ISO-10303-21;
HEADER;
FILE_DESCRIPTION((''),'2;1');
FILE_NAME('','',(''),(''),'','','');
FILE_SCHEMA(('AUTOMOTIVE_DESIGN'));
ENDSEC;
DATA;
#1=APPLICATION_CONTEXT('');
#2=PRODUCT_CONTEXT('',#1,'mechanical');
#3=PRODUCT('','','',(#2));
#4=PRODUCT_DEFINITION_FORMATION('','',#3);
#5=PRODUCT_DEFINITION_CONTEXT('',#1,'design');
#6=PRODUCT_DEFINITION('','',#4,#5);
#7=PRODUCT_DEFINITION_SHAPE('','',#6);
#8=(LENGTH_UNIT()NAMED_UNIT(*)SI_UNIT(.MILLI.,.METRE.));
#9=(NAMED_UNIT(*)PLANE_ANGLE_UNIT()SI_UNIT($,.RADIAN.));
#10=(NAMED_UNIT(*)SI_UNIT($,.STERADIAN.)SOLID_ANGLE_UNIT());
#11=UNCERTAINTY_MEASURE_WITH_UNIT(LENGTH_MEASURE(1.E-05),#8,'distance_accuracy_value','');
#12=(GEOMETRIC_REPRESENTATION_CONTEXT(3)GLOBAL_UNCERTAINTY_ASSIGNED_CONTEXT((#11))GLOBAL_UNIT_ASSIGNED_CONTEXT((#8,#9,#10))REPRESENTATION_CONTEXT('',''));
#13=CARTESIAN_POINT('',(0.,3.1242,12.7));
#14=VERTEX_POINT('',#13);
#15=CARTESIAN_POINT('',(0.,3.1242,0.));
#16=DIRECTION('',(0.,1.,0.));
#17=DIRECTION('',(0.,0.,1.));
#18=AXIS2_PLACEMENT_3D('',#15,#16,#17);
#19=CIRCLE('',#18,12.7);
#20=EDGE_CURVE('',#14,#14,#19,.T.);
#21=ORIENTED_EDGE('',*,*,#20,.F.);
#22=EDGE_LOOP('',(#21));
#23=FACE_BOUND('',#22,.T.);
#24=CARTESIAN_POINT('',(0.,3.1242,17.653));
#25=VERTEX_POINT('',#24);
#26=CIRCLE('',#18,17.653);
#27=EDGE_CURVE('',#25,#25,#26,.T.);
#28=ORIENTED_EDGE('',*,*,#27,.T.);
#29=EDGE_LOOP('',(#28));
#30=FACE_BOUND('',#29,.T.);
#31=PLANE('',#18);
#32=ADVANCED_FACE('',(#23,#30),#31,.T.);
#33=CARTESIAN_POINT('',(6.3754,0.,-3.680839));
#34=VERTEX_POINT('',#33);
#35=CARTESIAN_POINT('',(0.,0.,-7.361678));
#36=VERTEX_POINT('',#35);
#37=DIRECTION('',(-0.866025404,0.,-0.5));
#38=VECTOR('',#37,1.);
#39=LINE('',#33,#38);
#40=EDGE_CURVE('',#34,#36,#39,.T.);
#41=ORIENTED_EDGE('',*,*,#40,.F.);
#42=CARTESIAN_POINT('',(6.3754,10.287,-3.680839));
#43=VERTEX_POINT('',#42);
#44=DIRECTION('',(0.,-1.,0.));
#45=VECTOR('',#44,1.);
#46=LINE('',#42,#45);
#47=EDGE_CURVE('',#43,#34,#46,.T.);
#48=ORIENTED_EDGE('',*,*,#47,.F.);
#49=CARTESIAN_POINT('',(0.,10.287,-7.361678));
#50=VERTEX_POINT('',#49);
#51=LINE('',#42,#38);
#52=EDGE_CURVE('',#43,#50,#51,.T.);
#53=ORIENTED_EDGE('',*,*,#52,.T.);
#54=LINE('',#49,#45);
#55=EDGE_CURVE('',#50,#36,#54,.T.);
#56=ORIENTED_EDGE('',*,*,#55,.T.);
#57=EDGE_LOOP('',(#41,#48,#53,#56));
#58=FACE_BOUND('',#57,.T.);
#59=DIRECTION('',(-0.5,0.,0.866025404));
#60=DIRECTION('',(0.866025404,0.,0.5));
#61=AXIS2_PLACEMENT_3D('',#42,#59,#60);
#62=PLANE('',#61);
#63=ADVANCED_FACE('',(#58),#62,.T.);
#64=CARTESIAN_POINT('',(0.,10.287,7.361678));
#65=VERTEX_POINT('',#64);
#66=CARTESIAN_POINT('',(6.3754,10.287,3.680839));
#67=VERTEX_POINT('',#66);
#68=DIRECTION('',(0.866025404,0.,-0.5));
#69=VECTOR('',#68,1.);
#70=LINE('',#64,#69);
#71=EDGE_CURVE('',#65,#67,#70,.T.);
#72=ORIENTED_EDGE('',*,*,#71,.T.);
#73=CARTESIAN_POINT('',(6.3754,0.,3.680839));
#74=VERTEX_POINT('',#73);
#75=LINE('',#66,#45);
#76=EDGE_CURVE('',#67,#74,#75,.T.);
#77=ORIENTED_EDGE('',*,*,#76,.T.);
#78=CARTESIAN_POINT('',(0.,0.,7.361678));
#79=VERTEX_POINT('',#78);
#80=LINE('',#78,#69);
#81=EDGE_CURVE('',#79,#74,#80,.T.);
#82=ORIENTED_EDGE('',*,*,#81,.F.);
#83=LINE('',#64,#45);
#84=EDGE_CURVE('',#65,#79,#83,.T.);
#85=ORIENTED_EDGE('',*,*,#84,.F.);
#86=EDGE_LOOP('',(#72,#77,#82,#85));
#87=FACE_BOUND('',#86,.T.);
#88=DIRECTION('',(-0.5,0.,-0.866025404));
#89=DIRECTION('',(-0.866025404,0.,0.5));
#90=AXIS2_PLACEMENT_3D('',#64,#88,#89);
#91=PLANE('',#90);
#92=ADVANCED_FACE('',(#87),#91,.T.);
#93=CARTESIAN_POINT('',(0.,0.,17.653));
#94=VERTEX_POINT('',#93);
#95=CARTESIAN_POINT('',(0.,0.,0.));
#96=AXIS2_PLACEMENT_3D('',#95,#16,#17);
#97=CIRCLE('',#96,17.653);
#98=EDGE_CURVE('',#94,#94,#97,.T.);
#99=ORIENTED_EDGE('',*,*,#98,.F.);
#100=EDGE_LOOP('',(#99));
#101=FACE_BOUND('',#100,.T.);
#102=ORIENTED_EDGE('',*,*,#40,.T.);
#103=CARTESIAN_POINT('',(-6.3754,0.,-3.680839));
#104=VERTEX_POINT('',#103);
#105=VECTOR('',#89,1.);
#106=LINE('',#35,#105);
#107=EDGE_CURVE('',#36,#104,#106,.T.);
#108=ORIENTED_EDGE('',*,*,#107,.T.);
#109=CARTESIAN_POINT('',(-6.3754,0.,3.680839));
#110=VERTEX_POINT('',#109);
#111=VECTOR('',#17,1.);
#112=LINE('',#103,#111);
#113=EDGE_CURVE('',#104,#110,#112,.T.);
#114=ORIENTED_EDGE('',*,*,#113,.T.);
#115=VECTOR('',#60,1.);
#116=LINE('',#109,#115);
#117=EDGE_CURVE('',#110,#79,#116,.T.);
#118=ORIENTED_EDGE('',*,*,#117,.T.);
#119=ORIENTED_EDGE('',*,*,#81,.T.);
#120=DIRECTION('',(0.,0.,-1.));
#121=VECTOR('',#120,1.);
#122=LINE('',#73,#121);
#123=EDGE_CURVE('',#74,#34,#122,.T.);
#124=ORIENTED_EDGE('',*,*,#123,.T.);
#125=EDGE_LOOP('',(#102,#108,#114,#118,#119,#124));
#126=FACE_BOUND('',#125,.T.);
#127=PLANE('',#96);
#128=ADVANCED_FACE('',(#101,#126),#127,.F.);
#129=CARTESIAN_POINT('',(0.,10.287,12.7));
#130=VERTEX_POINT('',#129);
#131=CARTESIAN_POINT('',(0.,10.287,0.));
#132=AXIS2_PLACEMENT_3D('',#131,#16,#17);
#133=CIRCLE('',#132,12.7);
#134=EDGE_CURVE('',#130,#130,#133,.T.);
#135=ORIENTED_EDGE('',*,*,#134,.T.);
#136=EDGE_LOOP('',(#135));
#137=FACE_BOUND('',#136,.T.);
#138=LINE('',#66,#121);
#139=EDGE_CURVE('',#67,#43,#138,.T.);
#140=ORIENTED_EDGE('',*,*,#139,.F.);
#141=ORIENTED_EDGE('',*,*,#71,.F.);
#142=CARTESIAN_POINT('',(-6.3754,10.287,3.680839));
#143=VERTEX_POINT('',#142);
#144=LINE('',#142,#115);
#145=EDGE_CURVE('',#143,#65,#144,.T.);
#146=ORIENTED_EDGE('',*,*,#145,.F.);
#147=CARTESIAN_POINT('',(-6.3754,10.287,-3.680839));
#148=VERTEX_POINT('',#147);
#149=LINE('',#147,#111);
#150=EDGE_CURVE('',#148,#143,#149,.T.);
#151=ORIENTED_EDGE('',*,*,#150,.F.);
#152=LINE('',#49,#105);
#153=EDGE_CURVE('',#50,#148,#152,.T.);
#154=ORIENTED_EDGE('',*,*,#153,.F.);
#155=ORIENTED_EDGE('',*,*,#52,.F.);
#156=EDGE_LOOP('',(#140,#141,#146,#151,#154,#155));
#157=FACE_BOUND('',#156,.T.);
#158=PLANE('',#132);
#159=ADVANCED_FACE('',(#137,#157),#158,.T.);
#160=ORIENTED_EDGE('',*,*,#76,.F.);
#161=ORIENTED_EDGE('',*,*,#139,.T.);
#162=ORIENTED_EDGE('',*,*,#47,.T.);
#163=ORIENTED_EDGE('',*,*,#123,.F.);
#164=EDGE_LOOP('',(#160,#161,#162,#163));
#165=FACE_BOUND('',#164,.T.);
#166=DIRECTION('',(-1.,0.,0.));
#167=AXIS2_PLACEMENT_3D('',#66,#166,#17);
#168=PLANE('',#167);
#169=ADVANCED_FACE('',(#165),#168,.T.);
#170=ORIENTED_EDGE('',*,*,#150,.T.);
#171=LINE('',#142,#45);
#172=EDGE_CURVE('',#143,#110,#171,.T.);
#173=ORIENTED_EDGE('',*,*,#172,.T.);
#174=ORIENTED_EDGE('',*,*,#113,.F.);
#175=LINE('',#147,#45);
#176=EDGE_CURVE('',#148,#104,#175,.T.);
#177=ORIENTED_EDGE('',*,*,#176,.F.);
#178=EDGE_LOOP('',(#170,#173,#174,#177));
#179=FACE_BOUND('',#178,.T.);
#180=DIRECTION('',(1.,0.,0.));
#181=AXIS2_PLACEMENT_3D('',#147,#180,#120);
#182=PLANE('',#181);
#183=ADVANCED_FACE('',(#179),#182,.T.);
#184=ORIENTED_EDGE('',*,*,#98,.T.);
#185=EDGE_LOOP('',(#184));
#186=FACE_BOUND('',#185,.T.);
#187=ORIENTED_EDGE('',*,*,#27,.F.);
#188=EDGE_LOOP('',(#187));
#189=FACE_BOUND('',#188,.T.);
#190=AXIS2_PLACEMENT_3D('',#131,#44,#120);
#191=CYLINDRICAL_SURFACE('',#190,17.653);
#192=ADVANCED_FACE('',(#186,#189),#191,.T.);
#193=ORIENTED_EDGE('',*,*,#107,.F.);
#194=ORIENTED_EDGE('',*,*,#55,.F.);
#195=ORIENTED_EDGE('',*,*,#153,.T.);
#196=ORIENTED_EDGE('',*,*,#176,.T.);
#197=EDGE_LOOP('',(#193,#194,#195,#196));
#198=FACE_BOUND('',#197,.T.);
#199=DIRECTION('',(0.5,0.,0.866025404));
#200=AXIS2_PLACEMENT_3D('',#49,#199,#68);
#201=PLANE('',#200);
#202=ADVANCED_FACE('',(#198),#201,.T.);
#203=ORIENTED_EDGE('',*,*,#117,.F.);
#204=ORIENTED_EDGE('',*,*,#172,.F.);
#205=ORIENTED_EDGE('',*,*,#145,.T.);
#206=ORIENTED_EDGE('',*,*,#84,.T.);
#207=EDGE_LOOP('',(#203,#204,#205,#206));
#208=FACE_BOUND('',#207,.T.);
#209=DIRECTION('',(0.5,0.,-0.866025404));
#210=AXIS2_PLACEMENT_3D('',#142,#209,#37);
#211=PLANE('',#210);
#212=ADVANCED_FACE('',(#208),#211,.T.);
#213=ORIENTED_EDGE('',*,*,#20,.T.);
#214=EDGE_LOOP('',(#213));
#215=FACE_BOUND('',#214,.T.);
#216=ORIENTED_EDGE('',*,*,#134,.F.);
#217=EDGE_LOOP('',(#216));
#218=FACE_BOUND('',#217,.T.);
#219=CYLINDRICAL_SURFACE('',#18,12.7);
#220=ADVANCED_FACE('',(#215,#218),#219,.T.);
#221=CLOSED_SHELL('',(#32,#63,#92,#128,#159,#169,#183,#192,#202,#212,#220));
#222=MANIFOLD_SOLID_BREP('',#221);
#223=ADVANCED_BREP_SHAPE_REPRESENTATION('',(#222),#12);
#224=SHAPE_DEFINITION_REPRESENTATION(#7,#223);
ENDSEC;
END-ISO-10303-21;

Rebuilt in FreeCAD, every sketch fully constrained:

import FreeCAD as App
import Part
import Sketcher
Q = App.Units.Quantity


def add_polygon(sketch, points):
    """Adds a closed chain of lines whose ends are joined by coincident constraints."""
    first, n = sketch.GeometryCount, len(points)
    for a, b in zip(points, points[1:] + points[:1]):
        sketch.addGeometry(Part.LineSegment(App.Vector(*a, 0), App.Vector(*b, 0)), False)
    for i in range(n):
        sketch.addConstraint(Sketcher.Constraint("Coincident", first + i, 2, first + (i + 1) % n, 1))

doc = App.newDocument("Part")
body = doc.addObject("PartDesign::Body", "Body")

sketch1 = body.newObject("Sketcher::SketchObject", "Sketch")
sketch1.AttachmentSupport = (doc.getObject("XZ_Plane"), [""])
sketch1.MapMode = "FlatFace"
sketch1.addGeometry(Part.Circle(App.Vector(0, 0, 0), App.Vector(0, 0, 1), 17.653), False)
add_polygon(sketch1, [(-6.3754, -3.680839), (0, -7.361678), (6.3754, -3.680839), (6.3754, 3.680839), (0, 7.361678), (-6.3754, 3.680839)])
sketch1.addConstraint(Sketcher.Constraint("Vertical", 3))
sketch1.addConstraint(Sketcher.Constraint("Vertical", 6))
sketch1.addConstraint(Sketcher.Constraint("Coincident", 0, 3, -1, 1))
sketch1.addConstraint(Sketcher.Constraint("Symmetric", 1, 2, 4, 2, -1, 1))
sketch1.addConstraint(Sketcher.Constraint("Symmetric", 2, 2, 5, 2, -1, 1))
sketch1.addConstraint(Sketcher.Constraint("PointOnObject", 1, 2, -2))
sketch1.addConstraint(Sketcher.Constraint("Parallel", 1, 4))
sketch1.addConstraint(Sketcher.Constraint("Horizontal", 3, 2, 5, 2))
sketch1.addConstraint(Sketcher.Constraint("Diameter", 0, Q("1.39 in")))
sketch1.addConstraint(Sketcher.Constraint("Angle", 1, Q("-30 deg")))
sketch1.addConstraint(Sketcher.Constraint("DistanceX", -1, 1, 2, 2, Q("0.251 in")))
sketch1.addConstraint(Sketcher.Constraint("DistanceY", 3, 1, 3, 2, 7.361678))
pad1 = body.newObject("PartDesign::Pad", "Pad")
pad1.Profile = sketch1
pad1.Length = Q("0.405 in")
pad1.Reversed = True

sketch2 = body.newObject("Sketcher::SketchObject", "Sketch001")
sketch2.AttachmentSupport = (doc.getObject("XZ_Plane"), [""])
sketch2.MapMode = "FlatFace"
sketch2.AttachmentOffset = App.Placement(App.Vector(0, 0, -0.405 * 25.4), App.Rotation())
sketch2.addGeometry(Part.Circle(App.Vector(0, 0, 0), App.Vector(0, 0, 1), 23.749), False)
sketch2.addGeometry(Part.Circle(App.Vector(0, 0, 0), App.Vector(0, 0, 1), 12.7), False)
sketch2.addConstraint(Sketcher.Constraint("Coincident", 0, 3, -1, 1))
sketch2.addConstraint(Sketcher.Constraint("Coincident", 1, 3, -1, 1))
sketch2.addConstraint(Sketcher.Constraint("Diameter", 1, Q("1 in")))
sketch2.addConstraint(Sketcher.Constraint("Diameter", 0, Q("1.87 in")))
pocket1 = body.newObject("PartDesign::Pocket", "Pocket")
pocket1.Profile = sketch2
pocket1.Length = Q("0.282 in")
pocket1.Reversed = True

doc.recompute()
